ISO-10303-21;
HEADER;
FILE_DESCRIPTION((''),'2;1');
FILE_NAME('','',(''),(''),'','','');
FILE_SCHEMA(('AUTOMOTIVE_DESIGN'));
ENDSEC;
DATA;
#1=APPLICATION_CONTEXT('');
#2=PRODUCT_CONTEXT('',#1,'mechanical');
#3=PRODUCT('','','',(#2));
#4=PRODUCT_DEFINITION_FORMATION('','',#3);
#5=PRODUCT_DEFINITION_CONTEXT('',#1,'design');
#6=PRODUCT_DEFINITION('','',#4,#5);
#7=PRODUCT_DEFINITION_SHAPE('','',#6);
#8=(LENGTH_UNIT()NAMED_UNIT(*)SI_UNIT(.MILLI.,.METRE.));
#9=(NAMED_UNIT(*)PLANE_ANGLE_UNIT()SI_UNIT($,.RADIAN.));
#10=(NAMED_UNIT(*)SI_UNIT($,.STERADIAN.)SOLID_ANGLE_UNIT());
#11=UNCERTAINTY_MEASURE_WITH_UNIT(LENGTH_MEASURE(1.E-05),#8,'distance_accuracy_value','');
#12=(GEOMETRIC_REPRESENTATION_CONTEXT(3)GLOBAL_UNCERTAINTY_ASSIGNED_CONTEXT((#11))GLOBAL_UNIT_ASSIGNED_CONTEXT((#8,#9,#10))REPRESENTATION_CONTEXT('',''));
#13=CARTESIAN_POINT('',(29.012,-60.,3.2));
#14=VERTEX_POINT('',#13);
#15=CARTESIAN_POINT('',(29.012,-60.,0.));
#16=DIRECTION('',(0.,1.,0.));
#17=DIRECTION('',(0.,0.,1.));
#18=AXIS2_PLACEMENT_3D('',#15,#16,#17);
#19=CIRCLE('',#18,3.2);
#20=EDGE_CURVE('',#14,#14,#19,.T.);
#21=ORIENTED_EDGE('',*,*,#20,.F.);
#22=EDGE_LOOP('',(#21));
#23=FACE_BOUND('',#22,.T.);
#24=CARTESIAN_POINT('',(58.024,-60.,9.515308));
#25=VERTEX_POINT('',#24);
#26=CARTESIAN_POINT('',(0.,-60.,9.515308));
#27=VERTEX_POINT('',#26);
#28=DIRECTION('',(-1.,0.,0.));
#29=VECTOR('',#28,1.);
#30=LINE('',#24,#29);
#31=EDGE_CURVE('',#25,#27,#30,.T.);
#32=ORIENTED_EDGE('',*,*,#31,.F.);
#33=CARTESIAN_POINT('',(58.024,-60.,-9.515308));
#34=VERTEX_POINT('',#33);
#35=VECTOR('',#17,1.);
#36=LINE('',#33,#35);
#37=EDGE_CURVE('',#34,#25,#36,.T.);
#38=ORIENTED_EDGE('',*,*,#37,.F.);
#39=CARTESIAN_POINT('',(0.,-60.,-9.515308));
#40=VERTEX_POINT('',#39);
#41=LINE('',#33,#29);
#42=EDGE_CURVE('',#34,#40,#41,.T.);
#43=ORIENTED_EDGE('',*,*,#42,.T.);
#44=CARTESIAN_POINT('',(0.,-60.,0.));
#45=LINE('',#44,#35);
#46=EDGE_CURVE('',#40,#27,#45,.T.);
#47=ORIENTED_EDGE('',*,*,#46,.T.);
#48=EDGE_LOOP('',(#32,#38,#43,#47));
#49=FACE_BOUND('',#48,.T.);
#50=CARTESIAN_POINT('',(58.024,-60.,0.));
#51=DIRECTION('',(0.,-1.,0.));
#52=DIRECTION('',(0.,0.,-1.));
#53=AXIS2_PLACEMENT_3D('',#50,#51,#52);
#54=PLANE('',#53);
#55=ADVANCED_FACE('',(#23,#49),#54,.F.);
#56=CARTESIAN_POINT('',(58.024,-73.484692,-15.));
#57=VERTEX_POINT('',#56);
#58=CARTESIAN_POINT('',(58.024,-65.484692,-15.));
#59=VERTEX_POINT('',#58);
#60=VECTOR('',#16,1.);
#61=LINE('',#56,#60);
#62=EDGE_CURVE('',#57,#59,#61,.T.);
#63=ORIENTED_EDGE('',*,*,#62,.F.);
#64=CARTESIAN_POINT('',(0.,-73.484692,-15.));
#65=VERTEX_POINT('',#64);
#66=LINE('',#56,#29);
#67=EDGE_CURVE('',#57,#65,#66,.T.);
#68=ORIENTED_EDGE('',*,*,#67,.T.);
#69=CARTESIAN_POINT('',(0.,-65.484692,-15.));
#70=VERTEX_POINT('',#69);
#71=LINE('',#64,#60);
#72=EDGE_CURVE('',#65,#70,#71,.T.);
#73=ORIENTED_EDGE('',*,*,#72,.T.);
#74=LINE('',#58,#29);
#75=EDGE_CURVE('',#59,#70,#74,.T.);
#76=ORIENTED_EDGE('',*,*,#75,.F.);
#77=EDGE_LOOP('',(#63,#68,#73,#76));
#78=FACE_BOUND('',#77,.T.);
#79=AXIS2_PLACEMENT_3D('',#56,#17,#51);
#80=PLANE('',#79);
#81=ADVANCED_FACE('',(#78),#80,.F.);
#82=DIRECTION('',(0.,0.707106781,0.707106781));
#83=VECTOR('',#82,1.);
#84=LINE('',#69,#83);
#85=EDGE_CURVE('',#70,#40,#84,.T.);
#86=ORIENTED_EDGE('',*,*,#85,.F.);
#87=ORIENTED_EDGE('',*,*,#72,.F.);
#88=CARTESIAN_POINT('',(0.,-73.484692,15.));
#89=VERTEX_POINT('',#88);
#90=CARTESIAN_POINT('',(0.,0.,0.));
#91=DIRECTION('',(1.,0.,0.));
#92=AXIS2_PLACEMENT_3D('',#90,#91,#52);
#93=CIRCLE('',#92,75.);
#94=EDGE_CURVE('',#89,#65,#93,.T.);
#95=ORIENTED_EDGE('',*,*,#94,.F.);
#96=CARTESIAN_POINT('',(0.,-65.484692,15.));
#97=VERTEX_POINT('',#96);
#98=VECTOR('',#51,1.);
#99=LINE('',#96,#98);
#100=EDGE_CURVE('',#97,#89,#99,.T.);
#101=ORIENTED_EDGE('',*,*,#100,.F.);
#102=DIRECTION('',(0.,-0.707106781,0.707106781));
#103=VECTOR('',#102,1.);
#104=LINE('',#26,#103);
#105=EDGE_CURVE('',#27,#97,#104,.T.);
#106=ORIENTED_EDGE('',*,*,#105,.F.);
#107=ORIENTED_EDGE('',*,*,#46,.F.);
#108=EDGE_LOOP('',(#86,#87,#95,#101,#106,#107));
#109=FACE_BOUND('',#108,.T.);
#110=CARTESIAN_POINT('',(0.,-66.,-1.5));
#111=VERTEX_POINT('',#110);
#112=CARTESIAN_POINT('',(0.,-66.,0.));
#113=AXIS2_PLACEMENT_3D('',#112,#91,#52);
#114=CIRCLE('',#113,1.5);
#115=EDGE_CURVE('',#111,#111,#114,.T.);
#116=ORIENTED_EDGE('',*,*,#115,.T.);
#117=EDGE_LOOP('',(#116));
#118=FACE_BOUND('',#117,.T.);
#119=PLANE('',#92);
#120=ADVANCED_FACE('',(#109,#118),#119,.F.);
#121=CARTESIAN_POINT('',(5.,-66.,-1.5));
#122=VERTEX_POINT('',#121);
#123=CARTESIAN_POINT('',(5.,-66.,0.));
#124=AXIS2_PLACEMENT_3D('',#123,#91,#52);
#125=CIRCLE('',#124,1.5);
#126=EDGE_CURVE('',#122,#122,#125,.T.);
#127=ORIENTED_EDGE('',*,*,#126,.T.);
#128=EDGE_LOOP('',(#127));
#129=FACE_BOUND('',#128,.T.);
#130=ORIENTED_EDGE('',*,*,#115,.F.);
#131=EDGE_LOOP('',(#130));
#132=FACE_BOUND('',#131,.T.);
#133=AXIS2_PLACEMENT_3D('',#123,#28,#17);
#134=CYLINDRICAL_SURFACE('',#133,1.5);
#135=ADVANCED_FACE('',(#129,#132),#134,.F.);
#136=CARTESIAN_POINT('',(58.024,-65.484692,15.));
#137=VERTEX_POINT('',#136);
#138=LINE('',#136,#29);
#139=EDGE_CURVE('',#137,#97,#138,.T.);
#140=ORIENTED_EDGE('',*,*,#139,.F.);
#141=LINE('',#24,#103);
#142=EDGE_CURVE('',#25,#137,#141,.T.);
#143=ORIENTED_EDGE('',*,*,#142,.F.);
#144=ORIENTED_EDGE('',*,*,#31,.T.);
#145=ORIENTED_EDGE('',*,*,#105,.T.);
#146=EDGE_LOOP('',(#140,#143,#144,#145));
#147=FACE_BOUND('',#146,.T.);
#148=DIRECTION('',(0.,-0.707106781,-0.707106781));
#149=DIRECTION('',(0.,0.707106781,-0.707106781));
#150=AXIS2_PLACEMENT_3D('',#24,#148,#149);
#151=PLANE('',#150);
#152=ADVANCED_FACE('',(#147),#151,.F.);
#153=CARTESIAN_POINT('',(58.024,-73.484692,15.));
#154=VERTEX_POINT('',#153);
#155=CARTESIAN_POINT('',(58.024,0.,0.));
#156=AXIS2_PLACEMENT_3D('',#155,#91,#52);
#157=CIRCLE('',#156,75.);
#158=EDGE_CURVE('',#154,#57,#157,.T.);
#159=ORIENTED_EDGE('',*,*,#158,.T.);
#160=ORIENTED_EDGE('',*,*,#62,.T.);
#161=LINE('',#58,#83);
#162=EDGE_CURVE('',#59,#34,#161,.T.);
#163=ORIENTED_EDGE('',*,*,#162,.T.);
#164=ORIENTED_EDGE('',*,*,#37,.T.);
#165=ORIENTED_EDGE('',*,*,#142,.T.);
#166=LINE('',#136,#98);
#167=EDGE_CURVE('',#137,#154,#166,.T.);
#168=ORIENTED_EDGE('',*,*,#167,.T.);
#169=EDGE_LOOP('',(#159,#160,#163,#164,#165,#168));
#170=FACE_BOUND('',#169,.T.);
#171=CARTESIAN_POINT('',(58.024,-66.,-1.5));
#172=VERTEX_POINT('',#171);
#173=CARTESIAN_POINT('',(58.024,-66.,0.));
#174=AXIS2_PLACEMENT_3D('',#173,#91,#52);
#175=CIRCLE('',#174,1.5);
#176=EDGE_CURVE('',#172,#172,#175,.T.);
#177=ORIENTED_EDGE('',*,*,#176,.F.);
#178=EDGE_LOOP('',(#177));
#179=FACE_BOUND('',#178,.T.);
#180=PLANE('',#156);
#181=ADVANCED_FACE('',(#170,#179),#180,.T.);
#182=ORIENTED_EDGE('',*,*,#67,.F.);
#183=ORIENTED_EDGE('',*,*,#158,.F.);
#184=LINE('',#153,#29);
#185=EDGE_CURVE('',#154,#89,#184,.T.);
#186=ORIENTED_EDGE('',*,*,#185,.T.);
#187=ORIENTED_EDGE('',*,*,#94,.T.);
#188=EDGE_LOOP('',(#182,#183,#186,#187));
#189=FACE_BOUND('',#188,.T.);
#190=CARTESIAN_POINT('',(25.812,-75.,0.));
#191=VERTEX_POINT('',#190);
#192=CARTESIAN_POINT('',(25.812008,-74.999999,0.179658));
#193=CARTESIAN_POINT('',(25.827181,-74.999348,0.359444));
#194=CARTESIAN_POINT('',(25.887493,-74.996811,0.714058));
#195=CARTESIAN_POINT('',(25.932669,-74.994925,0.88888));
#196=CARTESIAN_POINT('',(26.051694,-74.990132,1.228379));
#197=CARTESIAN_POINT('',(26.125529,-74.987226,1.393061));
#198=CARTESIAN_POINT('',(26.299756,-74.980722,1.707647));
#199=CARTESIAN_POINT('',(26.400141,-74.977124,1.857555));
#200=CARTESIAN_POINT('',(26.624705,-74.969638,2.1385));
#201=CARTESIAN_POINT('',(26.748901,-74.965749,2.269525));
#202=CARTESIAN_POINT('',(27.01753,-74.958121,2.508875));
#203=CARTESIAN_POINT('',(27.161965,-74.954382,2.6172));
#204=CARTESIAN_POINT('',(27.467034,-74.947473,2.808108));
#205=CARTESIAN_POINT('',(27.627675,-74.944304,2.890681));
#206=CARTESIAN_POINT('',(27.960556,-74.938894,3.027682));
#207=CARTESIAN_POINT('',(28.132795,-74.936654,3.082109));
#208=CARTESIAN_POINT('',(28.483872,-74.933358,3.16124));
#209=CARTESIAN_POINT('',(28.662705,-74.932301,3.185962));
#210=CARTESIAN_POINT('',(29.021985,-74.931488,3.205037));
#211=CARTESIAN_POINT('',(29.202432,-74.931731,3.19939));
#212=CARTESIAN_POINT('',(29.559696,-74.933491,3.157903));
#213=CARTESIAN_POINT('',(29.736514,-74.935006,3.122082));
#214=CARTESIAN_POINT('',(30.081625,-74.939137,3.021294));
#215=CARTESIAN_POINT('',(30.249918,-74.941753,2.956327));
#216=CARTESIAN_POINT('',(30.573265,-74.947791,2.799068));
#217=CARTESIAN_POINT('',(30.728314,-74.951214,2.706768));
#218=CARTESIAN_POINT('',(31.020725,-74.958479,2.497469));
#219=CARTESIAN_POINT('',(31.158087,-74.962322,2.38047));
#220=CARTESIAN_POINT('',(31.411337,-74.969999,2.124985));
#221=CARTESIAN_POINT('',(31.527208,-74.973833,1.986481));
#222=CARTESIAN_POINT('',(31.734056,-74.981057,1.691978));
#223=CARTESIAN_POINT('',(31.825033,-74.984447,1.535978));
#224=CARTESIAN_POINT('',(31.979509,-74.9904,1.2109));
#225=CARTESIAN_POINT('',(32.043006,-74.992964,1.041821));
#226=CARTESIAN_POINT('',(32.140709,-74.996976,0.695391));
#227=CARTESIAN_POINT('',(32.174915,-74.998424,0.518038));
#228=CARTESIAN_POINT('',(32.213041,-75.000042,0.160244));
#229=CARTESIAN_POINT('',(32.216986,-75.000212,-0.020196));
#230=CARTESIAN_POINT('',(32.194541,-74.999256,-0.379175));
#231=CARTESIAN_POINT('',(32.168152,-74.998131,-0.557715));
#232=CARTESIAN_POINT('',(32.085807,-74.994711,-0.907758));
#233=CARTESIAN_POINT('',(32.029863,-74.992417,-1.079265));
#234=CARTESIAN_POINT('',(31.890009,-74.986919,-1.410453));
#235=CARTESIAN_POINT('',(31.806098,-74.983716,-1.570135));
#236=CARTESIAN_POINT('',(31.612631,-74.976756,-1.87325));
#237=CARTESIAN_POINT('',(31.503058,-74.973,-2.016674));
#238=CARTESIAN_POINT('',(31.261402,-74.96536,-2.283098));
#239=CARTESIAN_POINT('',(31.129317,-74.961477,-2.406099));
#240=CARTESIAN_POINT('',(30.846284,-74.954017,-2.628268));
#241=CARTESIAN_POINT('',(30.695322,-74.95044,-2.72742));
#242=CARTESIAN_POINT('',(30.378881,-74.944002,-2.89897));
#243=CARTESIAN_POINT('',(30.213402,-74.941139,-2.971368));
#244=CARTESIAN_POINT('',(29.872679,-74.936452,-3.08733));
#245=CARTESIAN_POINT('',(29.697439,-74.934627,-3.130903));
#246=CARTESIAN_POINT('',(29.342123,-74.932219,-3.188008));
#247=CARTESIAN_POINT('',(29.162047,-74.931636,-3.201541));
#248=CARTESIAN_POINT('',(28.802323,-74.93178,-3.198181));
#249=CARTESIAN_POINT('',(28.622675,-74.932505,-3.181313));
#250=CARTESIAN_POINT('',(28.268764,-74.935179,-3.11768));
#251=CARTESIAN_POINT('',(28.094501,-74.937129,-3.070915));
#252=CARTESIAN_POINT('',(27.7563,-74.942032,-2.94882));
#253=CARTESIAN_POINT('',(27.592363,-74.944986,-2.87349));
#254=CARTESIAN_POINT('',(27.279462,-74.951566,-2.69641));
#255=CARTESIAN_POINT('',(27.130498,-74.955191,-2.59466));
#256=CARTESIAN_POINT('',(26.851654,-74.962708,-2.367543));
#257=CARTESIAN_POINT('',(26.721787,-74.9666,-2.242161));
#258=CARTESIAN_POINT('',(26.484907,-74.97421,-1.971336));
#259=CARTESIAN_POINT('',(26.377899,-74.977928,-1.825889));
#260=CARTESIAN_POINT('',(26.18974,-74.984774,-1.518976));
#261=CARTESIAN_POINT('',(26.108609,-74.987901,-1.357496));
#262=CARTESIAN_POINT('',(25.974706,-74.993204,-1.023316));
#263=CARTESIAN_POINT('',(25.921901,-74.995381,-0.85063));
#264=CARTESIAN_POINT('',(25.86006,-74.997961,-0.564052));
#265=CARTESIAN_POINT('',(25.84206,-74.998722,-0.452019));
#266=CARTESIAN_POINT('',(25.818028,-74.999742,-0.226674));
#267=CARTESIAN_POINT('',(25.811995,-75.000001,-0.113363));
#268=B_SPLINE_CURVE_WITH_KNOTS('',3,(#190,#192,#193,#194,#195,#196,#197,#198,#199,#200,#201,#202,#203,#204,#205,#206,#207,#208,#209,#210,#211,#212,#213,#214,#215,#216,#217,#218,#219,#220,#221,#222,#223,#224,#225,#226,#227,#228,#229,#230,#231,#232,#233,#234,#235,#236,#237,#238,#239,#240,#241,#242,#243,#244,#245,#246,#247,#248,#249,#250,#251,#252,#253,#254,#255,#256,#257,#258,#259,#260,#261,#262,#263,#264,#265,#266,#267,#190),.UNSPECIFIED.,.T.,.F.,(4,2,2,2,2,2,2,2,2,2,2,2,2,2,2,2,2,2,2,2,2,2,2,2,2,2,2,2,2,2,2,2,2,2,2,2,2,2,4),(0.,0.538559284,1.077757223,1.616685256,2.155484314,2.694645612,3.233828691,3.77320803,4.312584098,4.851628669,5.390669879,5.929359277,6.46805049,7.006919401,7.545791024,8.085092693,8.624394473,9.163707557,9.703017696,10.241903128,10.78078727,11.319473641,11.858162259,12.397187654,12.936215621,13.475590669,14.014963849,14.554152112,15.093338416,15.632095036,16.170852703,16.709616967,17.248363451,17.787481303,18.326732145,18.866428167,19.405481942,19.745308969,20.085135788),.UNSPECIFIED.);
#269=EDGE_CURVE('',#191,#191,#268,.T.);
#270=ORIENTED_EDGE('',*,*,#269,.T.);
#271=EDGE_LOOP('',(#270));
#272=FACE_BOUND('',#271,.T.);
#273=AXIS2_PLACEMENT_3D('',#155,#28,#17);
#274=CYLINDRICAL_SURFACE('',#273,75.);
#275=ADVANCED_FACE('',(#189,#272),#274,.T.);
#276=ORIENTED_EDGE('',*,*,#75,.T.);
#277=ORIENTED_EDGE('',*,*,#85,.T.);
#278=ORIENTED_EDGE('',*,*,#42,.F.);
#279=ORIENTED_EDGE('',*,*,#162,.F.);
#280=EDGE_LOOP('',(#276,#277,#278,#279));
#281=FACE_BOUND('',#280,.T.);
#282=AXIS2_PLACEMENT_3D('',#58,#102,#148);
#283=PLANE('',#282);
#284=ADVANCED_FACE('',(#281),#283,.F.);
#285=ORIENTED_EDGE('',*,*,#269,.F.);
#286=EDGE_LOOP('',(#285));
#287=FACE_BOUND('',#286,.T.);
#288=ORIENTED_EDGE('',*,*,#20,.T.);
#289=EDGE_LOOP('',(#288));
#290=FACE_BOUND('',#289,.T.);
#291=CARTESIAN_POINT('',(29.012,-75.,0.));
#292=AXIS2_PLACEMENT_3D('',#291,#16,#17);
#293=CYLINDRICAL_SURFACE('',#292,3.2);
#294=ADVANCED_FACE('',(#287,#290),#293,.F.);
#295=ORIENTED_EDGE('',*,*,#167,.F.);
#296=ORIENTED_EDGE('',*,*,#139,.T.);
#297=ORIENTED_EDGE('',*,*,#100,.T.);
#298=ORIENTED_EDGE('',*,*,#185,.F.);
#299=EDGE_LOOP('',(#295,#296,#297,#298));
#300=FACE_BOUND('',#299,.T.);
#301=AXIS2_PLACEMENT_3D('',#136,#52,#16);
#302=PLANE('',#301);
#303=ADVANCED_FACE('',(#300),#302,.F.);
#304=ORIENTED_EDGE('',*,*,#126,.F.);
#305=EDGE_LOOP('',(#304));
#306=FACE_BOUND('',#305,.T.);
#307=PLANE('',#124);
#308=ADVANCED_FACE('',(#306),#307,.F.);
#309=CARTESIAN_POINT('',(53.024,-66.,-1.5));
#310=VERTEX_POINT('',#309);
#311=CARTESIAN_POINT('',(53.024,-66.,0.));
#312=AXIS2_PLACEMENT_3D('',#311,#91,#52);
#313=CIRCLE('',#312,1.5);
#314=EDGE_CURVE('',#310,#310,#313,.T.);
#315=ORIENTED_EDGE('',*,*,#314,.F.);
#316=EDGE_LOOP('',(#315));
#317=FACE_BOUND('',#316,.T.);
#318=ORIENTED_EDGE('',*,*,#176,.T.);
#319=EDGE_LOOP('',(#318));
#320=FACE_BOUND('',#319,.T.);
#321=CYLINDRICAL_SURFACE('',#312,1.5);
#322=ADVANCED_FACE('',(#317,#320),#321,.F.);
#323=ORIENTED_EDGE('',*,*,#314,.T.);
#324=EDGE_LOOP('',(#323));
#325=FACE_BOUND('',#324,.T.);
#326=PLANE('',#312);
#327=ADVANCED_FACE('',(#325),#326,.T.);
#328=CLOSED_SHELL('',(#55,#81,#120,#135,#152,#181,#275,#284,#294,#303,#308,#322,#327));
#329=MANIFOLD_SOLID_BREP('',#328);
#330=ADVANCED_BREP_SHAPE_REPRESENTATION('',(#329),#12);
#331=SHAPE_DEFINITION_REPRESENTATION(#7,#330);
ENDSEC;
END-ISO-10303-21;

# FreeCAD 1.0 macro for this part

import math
import FreeCAD as App
import Part
import Sketcher
from FreeCAD import Vector

doc = App.newDocument("Part")
body = doc.addObject("PartDesign::Body", "Body")

sketch1 = doc.addObject("Sketcher::SketchObject", "Sketch")
body.addObject(sketch1)
sketch1.AttachmentSupport = (doc.YZ_Plane, [""])
sketch1.MapMode = "FlatFace"
sketch1.addGeometry(Part.LineSegment(Vector(-73, -15, 0), Vector(-65, -15, 0)), False)
sketch1.addGeometry(Part.LineSegment(Vector(-65, -15, 0), Vector(-60, -10, 0)), False)
sketch1.addGeometry(Part.LineSegment(Vector(-60, -10, 0), Vector(-60, 10, 0)), False)
sketch1.addGeometry(Part.LineSegment(Vector(-60, 10, 0), Vector(-65, 15, 0)), False)
sketch1.addGeometry(Part.LineSegment(Vector(-65, 15, 0), Vector(-73, 15, 0)), False)
sketch1.addGeometry(Part.ArcOfCircle(Part.Circle(Vector(0, 0, 0), Vector(0, 0, 1), 75), math.radians(168), math.radians(192)), False)
sketch1.addConstraint(Sketcher.Constraint("Coincident", 0, 2, 1, 1))
sketch1.addConstraint(Sketcher.Constraint("Coincident", 1, 2, 2, 1))
sketch1.addConstraint(Sketcher.Constraint("Coincident", 2, 2, 3, 1))
sketch1.addConstraint(Sketcher.Constraint("Coincident", 3, 2, 4, 1))
sketch1.addConstraint(Sketcher.Constraint("Coincident", 4, 2, 5, 1))
sketch1.addConstraint(Sketcher.Constraint("Coincident", 5, 2, 0, 1))
sketch1.addConstraint(Sketcher.Constraint("Horizontal", 0))
sketch1.addConstraint(Sketcher.Constraint("Vertical", 2))
sketch1.addConstraint(Sketcher.Constraint("Horizontal", 4))
sketch1.addConstraint(Sketcher.Constraint("Coincident", 5, 3, -1, 1))
sketch1.addConstraint(Sketcher.Constraint("Symmetric", 0, 2, 3, 2, -1))
sketch1.addConstraint(Sketcher.Constraint("Perpendicular", 1, 3))
sketch1.addConstraint(Sketcher.Constraint("Equal", 1, 3))
sketch1.addConstraint(Sketcher.Constraint("Radius", 5, 75.0))
sketch1.addConstraint(Sketcher.Constraint("DistanceX", 0, 1, 0, 2, 8.0))
sketch1.addConstraint(Sketcher.Constraint("DistanceY", 0, 2, -1, 1, 15.0))
sketch1.addConstraint(Sketcher.Constraint("DistanceX", 1, 2, -1, 1, 60.0))
pad1 = doc.addObject("PartDesign::Pad", "Pad")
body.addObject(pad1)
pad1.Profile = sketch1
pad1.Length = 58.024

sketch2 = doc.addObject("Sketcher::SketchObject", "Sketch001")
body.addObject(sketch2)
sketch2.AttachmentSupport = (doc.XZ_Plane, [""])
sketch2.MapMode = "FlatFace"
sketch2.AttachmentOffset = App.Placement(Vector(0, 0, 60), App.Rotation())
sketch2.addGeometry(Part.Circle(Vector(29, 0, 0), Vector(0, 0, 1), 3.2), False)
sketch2.addConstraint(Sketcher.Constraint("PointOnObject", 0, 3, -1))
sketch2.addConstraint(Sketcher.Constraint("Diameter", 0, 6.4))
sketch2.addConstraint(Sketcher.Constraint("DistanceX", -1, 1, 0, 3, 29.012))
pocket1 = doc.addObject("PartDesign::Pocket", "Pocket")
body.addObject(pocket1)
pocket1.Profile = sketch2
pocket1.Type = "ThroughAll"
pocket1.Reversed = True

sketch3 = doc.addObject("Sketcher::SketchObject", "Sketch002")
body.addObject(sketch3)
sketch3.AttachmentSupport = (doc.YZ_Plane, [""])
sketch3.MapMode = "FlatFace"
sketch3.addGeometry(Part.Circle(Vector(-66, 0, 0), Vector(0, 0, 1), 1.5), False)
sketch3.addConstraint(Sketcher.Constraint("PointOnObject", 0, 3, -1))
sketch3.addConstraint(Sketcher.Constraint("Diameter", 0, 3.0))
sketch3.addConstraint(Sketcher.Constraint("DistanceX", 0, 3, -1, 1, 66.0))
pocket2 = doc.addObject("PartDesign::Pocket", "Pocket001")
body.addObject(pocket2)
pocket2.Profile = sketch3
pocket2.Length = 5
pocket2.Reversed = True

sketch4 = doc.addObject("Sketcher::SketchObject", "Sketch003")
body.addObject(sketch4)
sketch4.AttachmentSupport = (doc.YZ_Plane, [""])
sketch4.MapMode = "FlatFace"
sketch4.AttachmentOffset = App.Placement(Vector(0, 0, 53.024), App.Rotation())
sketch4.addGeometry(Part.Circle(Vector(-66, 0, 0), Vector(0, 0, 1), 1.5), False)
sketch4.addConstraint(Sketcher.Constraint("PointOnObject", 0, 3, -1))
sketch4.addConstraint(Sketcher.Constraint("Diameter", 0, 3.0))
sketch4.addConstraint(Sketcher.Constraint("DistanceX", 0, 3, -1, 1, 66.0))
pocket3 = doc.addObject("PartDesign::Pocket", "Pocket002")
body.addObject(pocket3)
pocket3.Profile = sketch4
pocket3.Length = 5
pocket3.Reversed = True

doc.recompute()
